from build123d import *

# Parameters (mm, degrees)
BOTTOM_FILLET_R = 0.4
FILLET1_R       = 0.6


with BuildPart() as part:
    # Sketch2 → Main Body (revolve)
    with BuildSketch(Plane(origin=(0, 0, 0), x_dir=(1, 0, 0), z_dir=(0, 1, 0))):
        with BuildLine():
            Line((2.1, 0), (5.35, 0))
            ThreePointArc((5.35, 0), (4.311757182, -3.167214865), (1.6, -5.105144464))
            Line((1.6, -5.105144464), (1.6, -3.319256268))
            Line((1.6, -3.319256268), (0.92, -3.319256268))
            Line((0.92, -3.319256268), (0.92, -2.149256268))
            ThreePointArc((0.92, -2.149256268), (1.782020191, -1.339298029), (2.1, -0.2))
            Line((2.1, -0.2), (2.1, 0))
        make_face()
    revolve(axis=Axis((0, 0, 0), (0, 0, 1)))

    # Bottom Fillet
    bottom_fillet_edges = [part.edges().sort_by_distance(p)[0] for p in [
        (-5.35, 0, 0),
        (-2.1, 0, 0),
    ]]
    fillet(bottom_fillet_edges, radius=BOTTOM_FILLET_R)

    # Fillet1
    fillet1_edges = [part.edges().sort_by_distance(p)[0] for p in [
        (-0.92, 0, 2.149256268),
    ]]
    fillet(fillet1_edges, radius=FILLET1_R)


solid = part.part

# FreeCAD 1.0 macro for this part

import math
import FreeCAD as App
import Part
import Sketcher

V = App.Vector


def edges_at(feature, points):
    """Names of the edges that pass closest to the given points."""
    edges = feature.Shape.Edges
    near = lambda p: min(range(len(edges)), key=lambda i: edges[i].distToShape(Part.Vertex(*p))[0])
    return sorted({f"Edge{near(p) + 1}" for p in points})

doc = App.newDocument("Part")
params = doc.addObject("Spreadsheet::Sheet", "Params")
for row, (alias, value) in enumerate([
    ("sketch1_radius", "2.2 mm"),
    ("sketch1_radius2", "5.35 mm"),
    ("sketch1_height", "0.2 mm"),
    ("sketch1_width", "3.25 mm"),
    ("sketch1_width2", "0.68 mm"),
    ("revolution_angle", "360 deg"),
    ("fillet_radius", "0.4 mm"),
    ("fillet2_radius", "0.6 mm"),
], start=1):
    params.set(f"A{row}", alias)
    params.set(f"B{row}", "=" + value)
    params.setAlias(f"B{row}", alias)

body = doc.addObject("PartDesign::Body", "Body")

# Sketch on XZ plane
sketch1 = body.newObject("Sketcher::SketchObject", "Sketch")
sketch1.AttachmentSupport = (doc.getObject("XZ_Plane"), [""])
sketch1.MapMode = "FlatFace"
sketch1.addGeometry(Part.LineSegment(V(5.35, 0, 0), V(2.1, 0, 0)), False)
sketch1.addGeometry(Part.LineSegment(V(2.1, 0, 0), V(2.1, 0.2, 0)), False)
sketch1.addGeometry(Part.ArcOfCircle(Part.Circle(V(-0.1, 0.2, 0), V(0, 0, 1), 2.2), math.radians(0), math.radians(62)), False)
sketch1.addGeometry(Part.LineSegment(V(0.92, 2.15, 0), V(0.92, 3.32, 0)), False)
sketch1.addGeometry(Part.LineSegment(V(0.92, 3.32, 0), V(1.6, 3.32, 0)), False)
sketch1.addGeometry(Part.LineSegment(V(1.6, 3.32, 0), V(1.6, 5.11, 0)), False)
sketch1.addGeometry(Part.ArcOfCircle(Part.Circle(V(0, 0, 0), V(0, 0, 1), 5.35), math.radians(0), math.radians(73)), False)
sketch1.addConstraint(Sketcher.Constraint("Coincident", 0, 2, 1, 1))
sketch1.addConstraint(Sketcher.Constraint("Tangent", 1, 2, 2, 1))
sketch1.addConstraint(Sketcher.Constraint("Coincident", 2, 2, 3, 1))
sketch1.addConstraint(Sketcher.Constraint("Coincident", 3, 2, 4, 1))
sketch1.addConstraint(Sketcher.Constraint("Coincident", 4, 2, 5, 1))
sketch1.addConstraint(Sketcher.Constraint("Coincident", 5, 2, 6, 2))
sketch1.addConstraint(Sketcher.Constraint("Coincident", 6, 1, 0, 1))
sketch1.addConstraint(Sketcher.Constraint("Horizontal", 0))
sketch1.addConstraint(Sketcher.Constraint("Vertical", 1))
sketch1.addConstraint(Sketcher.Constraint("Vertical", 3))
sketch1.addConstraint(Sketcher.Constraint("Horizontal", 4))
sketch1.addConstraint(Sketcher.Constraint("Vertical", 5))
sketch1.addConstraint(Sketcher.Constraint("Coincident", 6, 3, -1, 1))
sketch1.addConstraint(Sketcher.Constraint("PointOnObject", 0, 2, -1))
sketch1.addConstraint(Sketcher.Constraint("Radius", 2, 2.2))
sketch1.addConstraint(Sketcher.Constraint("Radius", 6, 5.35))
sketch1.addConstraint(Sketcher.Constraint("DistanceY", 1, 1, 1, 2, 0.2))
sketch1.addConstraint(Sketcher.Constraint("DistanceX", 0, 2, 0, 1, 3.25))
sketch1.addConstraint(Sketcher.Constraint("DistanceX", 4, 1, 4, 2, 0.68))
sketch1.addConstraint(Sketcher.Constraint("DistanceY", 3, 1, 3, 2, 1.17))
sketch1.addConstraint(Sketcher.Constraint("DistanceX", -1, 1, 4, 2, 1.6))
sketch1.setExpression("Constraints[14]", "Params.sketch1_radius")
sketch1.setExpression("Constraints[15]", "Params.sketch1_radius2")
sketch1.setExpression("Constraints[16]", "Params.sketch1_height")
sketch1.setExpression("Constraints[17]", "Params.sketch1_width")
sketch1.setExpression("Constraints[18]", "Params.sketch1_width2")
revolution = body.newObject("PartDesign::Revolution", "Revolution")
revolution.Profile = sketch1
revolution.ReferenceAxis = (sketch1, ["V_Axis"])
revolution.setExpression("Angle", "Params.revolution_angle")
doc.recompute()

fillet = body.newObject("PartDesign::Fillet", "Fillet")
fillet.Base = (revolution, edges_at(revolution, [(-5.35, 0, 0), (-2.1, 0, 0)]))
fillet.setExpression("Radius", "Params.fillet_radius")
doc.recompute()

fillet2 = body.newObject("PartDesign::Fillet", "Fillet001")
fillet2.Base = (fillet, edges_at(fillet, [(-0.92, 0, 2.149)]))
fillet2.setExpression("Radius", "Params.fillet2_radius")

doc.recompute()
